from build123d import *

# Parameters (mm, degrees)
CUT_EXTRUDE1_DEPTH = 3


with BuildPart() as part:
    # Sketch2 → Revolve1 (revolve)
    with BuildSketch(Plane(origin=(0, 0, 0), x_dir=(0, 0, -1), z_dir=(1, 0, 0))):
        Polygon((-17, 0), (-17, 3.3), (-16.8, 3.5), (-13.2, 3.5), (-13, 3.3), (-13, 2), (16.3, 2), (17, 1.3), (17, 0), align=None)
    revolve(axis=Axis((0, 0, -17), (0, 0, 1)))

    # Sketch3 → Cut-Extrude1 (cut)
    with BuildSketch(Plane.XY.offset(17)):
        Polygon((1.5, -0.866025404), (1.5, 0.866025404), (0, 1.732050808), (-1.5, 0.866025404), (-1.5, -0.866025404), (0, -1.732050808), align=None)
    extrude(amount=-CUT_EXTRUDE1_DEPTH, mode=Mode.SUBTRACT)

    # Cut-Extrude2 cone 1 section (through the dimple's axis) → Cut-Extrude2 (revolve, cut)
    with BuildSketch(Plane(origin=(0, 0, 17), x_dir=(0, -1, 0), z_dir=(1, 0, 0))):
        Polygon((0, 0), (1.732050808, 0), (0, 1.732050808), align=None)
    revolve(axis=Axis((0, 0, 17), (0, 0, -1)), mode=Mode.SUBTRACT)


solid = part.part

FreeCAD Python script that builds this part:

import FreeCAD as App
import Part
import Sketcher

V = App.Vector
Q = App.Units.Quantity


def add_polygon(sketch, points):
    """Adds a closed chain of lines whose ends are joined by coincident constraints."""
    first, n = sketch.GeometryCount, len(points)
    for a, b in zip(points, points[1:] + points[:1]):
        sketch.addGeometry(Part.LineSegment(App.Vector(*a, 0), App.Vector(*b, 0)), False)
    for i in range(n):
        sketch.addConstraint(Sketcher.Constraint("Coincident", first + i, 2, first + (i + 1) % n, 1))

doc = App.newDocument("Part")
body = doc.addObject("PartDesign::Body", "Body")

# Sketch on YZ plane
sketch1 = body.newObject("Sketcher::SketchObject", "Sketch")
sketch1.AttachmentSupport = (doc.getObject("YZ_Plane"), [""])
sketch1.MapMode = "FlatFace"
add_polygon(sketch1, [(3.3, 17), (0, 17), (0, -17), (1.3, -17), (2, -16.3), (2, 13), (3.3, 13), (3.5, 13.2), (3.5, 16.8)])  # lines 0-8
sketch1.addConstraint([
    Sketcher.Constraint("Horizontal", 0),
    Sketcher.Constraint("Vertical", 1),
    Sketcher.Constraint("Horizontal", 2),
    Sketcher.Constraint("Vertical", 4),
    Sketcher.Constraint("Horizontal", 5),
    Sketcher.Constraint("Vertical", 7),
    Sketcher.Constraint("Symmetric", 0, 2, 1, 2, -1, 1),
    Sketcher.Constraint("Parallel", 3, 6),
    Sketcher.Constraint("Perpendicular", 6, 8),
    Sketcher.Constraint("Vertical", 5, 2, 8, 2),
    Sketcher.Constraint("Equal", 2, 5),
    Sketcher.Constraint("Equal", 6, 8),
    Sketcher.Constraint("DistanceY", 1, 2, 1, 1, Q("34 mm")),
    Sketcher.Constraint("DistanceX", 0, 2, 0, 1, Q("3.3 mm")),
    Sketcher.Constraint("DistanceX", 2, 1, 2, 2, Q("1.3 mm")),
    Sketcher.Constraint("DistanceY", 4, 1, 4, 2, Q("29.3 mm")),
    Sketcher.Constraint("DistanceY", 7, 1, 7, 2, Q("3.6 mm")),
])
revolution = body.newObject("PartDesign::Revolution", "Revolution")
revolution.Profile = sketch1
revolution.ReferenceAxis = (sketch1, ["V_Axis"])
revolution.Angle = 360

# Sketch on XY plane
sketch2 = body.newObject("Sketcher::SketchObject", "Sketch001")
sketch2.AttachmentSupport = (doc.getObject("XY_Plane"), [""])
sketch2.MapMode = "FlatFace"
sketch2.AttachmentOffset = App.Placement(V(0, 0, 17), App.Rotation())
add_polygon(sketch2, [(1.5, -0.866025), (1.5, 0.866025), (0, 1.732051), (-1.5, 0.866025), (-1.5, -0.866025), (0, -1.732051)])  # lines 0-5
sketch2.addConstraint([
    Sketcher.Constraint("Vertical", 0),
    Sketcher.Constraint("Vertical", 3),
    Sketcher.Constraint("Symmetric", 0, 2, 3, 2, -1, 1),
    Sketcher.Constraint("Symmetric", 1, 2, 4, 2, -1, 1),
    Sketcher.Constraint("PointOnObject", 1, 2, -2),
    Sketcher.Constraint("Parallel", 2, 5),
    Sketcher.Constraint("Horizontal", 0, 2, 2, 2),
    Sketcher.Constraint("Angle", 1, Q("150 deg")),
    Sketcher.Constraint("DistanceX", 2, 2, 0, 2, Q("3 mm")),
    Sketcher.Constraint("DistanceY", 0, 1, 0, 2, Q("1.732051 mm")),
])
pocket1 = body.newObject("PartDesign::Pocket", "Pocket")
pocket1.Profile = sketch2
pocket1.Length = 3

# Sketch on YZ plane
sketch3 = body.newObject("Sketcher::SketchObject", "Sketch002")
sketch3.AttachmentSupport = (doc.getObject("YZ_Plane"), [""])
sketch3.MapMode = "FlatFace"
add_polygon(sketch3, [(0, 17), (-1.732051, 17), (0, 15.267949)])  # lines 0-2
sketch3.addConstraint([
    Sketcher.Constraint("Horizontal", 0),
    Sketcher.Constraint("Vertical", 2),
    Sketcher.Constraint("PointOnObject", 1, 2, -2),
    Sketcher.Constraint("Equal", 0, 2),
    Sketcher.Constraint("DistanceY", -1, 1, 0, 2, Q("17 mm")),
    Sketcher.Constraint("DistanceX", 0, 2, 0, 1, Q("1.732051 mm")),
])
groove = body.newObject("PartDesign::Groove", "Groove")
groove.Profile = sketch3
groove.ReferenceAxis = (sketch3, ["V_Axis"])
groove.Angle = 360

doc.recompute()
